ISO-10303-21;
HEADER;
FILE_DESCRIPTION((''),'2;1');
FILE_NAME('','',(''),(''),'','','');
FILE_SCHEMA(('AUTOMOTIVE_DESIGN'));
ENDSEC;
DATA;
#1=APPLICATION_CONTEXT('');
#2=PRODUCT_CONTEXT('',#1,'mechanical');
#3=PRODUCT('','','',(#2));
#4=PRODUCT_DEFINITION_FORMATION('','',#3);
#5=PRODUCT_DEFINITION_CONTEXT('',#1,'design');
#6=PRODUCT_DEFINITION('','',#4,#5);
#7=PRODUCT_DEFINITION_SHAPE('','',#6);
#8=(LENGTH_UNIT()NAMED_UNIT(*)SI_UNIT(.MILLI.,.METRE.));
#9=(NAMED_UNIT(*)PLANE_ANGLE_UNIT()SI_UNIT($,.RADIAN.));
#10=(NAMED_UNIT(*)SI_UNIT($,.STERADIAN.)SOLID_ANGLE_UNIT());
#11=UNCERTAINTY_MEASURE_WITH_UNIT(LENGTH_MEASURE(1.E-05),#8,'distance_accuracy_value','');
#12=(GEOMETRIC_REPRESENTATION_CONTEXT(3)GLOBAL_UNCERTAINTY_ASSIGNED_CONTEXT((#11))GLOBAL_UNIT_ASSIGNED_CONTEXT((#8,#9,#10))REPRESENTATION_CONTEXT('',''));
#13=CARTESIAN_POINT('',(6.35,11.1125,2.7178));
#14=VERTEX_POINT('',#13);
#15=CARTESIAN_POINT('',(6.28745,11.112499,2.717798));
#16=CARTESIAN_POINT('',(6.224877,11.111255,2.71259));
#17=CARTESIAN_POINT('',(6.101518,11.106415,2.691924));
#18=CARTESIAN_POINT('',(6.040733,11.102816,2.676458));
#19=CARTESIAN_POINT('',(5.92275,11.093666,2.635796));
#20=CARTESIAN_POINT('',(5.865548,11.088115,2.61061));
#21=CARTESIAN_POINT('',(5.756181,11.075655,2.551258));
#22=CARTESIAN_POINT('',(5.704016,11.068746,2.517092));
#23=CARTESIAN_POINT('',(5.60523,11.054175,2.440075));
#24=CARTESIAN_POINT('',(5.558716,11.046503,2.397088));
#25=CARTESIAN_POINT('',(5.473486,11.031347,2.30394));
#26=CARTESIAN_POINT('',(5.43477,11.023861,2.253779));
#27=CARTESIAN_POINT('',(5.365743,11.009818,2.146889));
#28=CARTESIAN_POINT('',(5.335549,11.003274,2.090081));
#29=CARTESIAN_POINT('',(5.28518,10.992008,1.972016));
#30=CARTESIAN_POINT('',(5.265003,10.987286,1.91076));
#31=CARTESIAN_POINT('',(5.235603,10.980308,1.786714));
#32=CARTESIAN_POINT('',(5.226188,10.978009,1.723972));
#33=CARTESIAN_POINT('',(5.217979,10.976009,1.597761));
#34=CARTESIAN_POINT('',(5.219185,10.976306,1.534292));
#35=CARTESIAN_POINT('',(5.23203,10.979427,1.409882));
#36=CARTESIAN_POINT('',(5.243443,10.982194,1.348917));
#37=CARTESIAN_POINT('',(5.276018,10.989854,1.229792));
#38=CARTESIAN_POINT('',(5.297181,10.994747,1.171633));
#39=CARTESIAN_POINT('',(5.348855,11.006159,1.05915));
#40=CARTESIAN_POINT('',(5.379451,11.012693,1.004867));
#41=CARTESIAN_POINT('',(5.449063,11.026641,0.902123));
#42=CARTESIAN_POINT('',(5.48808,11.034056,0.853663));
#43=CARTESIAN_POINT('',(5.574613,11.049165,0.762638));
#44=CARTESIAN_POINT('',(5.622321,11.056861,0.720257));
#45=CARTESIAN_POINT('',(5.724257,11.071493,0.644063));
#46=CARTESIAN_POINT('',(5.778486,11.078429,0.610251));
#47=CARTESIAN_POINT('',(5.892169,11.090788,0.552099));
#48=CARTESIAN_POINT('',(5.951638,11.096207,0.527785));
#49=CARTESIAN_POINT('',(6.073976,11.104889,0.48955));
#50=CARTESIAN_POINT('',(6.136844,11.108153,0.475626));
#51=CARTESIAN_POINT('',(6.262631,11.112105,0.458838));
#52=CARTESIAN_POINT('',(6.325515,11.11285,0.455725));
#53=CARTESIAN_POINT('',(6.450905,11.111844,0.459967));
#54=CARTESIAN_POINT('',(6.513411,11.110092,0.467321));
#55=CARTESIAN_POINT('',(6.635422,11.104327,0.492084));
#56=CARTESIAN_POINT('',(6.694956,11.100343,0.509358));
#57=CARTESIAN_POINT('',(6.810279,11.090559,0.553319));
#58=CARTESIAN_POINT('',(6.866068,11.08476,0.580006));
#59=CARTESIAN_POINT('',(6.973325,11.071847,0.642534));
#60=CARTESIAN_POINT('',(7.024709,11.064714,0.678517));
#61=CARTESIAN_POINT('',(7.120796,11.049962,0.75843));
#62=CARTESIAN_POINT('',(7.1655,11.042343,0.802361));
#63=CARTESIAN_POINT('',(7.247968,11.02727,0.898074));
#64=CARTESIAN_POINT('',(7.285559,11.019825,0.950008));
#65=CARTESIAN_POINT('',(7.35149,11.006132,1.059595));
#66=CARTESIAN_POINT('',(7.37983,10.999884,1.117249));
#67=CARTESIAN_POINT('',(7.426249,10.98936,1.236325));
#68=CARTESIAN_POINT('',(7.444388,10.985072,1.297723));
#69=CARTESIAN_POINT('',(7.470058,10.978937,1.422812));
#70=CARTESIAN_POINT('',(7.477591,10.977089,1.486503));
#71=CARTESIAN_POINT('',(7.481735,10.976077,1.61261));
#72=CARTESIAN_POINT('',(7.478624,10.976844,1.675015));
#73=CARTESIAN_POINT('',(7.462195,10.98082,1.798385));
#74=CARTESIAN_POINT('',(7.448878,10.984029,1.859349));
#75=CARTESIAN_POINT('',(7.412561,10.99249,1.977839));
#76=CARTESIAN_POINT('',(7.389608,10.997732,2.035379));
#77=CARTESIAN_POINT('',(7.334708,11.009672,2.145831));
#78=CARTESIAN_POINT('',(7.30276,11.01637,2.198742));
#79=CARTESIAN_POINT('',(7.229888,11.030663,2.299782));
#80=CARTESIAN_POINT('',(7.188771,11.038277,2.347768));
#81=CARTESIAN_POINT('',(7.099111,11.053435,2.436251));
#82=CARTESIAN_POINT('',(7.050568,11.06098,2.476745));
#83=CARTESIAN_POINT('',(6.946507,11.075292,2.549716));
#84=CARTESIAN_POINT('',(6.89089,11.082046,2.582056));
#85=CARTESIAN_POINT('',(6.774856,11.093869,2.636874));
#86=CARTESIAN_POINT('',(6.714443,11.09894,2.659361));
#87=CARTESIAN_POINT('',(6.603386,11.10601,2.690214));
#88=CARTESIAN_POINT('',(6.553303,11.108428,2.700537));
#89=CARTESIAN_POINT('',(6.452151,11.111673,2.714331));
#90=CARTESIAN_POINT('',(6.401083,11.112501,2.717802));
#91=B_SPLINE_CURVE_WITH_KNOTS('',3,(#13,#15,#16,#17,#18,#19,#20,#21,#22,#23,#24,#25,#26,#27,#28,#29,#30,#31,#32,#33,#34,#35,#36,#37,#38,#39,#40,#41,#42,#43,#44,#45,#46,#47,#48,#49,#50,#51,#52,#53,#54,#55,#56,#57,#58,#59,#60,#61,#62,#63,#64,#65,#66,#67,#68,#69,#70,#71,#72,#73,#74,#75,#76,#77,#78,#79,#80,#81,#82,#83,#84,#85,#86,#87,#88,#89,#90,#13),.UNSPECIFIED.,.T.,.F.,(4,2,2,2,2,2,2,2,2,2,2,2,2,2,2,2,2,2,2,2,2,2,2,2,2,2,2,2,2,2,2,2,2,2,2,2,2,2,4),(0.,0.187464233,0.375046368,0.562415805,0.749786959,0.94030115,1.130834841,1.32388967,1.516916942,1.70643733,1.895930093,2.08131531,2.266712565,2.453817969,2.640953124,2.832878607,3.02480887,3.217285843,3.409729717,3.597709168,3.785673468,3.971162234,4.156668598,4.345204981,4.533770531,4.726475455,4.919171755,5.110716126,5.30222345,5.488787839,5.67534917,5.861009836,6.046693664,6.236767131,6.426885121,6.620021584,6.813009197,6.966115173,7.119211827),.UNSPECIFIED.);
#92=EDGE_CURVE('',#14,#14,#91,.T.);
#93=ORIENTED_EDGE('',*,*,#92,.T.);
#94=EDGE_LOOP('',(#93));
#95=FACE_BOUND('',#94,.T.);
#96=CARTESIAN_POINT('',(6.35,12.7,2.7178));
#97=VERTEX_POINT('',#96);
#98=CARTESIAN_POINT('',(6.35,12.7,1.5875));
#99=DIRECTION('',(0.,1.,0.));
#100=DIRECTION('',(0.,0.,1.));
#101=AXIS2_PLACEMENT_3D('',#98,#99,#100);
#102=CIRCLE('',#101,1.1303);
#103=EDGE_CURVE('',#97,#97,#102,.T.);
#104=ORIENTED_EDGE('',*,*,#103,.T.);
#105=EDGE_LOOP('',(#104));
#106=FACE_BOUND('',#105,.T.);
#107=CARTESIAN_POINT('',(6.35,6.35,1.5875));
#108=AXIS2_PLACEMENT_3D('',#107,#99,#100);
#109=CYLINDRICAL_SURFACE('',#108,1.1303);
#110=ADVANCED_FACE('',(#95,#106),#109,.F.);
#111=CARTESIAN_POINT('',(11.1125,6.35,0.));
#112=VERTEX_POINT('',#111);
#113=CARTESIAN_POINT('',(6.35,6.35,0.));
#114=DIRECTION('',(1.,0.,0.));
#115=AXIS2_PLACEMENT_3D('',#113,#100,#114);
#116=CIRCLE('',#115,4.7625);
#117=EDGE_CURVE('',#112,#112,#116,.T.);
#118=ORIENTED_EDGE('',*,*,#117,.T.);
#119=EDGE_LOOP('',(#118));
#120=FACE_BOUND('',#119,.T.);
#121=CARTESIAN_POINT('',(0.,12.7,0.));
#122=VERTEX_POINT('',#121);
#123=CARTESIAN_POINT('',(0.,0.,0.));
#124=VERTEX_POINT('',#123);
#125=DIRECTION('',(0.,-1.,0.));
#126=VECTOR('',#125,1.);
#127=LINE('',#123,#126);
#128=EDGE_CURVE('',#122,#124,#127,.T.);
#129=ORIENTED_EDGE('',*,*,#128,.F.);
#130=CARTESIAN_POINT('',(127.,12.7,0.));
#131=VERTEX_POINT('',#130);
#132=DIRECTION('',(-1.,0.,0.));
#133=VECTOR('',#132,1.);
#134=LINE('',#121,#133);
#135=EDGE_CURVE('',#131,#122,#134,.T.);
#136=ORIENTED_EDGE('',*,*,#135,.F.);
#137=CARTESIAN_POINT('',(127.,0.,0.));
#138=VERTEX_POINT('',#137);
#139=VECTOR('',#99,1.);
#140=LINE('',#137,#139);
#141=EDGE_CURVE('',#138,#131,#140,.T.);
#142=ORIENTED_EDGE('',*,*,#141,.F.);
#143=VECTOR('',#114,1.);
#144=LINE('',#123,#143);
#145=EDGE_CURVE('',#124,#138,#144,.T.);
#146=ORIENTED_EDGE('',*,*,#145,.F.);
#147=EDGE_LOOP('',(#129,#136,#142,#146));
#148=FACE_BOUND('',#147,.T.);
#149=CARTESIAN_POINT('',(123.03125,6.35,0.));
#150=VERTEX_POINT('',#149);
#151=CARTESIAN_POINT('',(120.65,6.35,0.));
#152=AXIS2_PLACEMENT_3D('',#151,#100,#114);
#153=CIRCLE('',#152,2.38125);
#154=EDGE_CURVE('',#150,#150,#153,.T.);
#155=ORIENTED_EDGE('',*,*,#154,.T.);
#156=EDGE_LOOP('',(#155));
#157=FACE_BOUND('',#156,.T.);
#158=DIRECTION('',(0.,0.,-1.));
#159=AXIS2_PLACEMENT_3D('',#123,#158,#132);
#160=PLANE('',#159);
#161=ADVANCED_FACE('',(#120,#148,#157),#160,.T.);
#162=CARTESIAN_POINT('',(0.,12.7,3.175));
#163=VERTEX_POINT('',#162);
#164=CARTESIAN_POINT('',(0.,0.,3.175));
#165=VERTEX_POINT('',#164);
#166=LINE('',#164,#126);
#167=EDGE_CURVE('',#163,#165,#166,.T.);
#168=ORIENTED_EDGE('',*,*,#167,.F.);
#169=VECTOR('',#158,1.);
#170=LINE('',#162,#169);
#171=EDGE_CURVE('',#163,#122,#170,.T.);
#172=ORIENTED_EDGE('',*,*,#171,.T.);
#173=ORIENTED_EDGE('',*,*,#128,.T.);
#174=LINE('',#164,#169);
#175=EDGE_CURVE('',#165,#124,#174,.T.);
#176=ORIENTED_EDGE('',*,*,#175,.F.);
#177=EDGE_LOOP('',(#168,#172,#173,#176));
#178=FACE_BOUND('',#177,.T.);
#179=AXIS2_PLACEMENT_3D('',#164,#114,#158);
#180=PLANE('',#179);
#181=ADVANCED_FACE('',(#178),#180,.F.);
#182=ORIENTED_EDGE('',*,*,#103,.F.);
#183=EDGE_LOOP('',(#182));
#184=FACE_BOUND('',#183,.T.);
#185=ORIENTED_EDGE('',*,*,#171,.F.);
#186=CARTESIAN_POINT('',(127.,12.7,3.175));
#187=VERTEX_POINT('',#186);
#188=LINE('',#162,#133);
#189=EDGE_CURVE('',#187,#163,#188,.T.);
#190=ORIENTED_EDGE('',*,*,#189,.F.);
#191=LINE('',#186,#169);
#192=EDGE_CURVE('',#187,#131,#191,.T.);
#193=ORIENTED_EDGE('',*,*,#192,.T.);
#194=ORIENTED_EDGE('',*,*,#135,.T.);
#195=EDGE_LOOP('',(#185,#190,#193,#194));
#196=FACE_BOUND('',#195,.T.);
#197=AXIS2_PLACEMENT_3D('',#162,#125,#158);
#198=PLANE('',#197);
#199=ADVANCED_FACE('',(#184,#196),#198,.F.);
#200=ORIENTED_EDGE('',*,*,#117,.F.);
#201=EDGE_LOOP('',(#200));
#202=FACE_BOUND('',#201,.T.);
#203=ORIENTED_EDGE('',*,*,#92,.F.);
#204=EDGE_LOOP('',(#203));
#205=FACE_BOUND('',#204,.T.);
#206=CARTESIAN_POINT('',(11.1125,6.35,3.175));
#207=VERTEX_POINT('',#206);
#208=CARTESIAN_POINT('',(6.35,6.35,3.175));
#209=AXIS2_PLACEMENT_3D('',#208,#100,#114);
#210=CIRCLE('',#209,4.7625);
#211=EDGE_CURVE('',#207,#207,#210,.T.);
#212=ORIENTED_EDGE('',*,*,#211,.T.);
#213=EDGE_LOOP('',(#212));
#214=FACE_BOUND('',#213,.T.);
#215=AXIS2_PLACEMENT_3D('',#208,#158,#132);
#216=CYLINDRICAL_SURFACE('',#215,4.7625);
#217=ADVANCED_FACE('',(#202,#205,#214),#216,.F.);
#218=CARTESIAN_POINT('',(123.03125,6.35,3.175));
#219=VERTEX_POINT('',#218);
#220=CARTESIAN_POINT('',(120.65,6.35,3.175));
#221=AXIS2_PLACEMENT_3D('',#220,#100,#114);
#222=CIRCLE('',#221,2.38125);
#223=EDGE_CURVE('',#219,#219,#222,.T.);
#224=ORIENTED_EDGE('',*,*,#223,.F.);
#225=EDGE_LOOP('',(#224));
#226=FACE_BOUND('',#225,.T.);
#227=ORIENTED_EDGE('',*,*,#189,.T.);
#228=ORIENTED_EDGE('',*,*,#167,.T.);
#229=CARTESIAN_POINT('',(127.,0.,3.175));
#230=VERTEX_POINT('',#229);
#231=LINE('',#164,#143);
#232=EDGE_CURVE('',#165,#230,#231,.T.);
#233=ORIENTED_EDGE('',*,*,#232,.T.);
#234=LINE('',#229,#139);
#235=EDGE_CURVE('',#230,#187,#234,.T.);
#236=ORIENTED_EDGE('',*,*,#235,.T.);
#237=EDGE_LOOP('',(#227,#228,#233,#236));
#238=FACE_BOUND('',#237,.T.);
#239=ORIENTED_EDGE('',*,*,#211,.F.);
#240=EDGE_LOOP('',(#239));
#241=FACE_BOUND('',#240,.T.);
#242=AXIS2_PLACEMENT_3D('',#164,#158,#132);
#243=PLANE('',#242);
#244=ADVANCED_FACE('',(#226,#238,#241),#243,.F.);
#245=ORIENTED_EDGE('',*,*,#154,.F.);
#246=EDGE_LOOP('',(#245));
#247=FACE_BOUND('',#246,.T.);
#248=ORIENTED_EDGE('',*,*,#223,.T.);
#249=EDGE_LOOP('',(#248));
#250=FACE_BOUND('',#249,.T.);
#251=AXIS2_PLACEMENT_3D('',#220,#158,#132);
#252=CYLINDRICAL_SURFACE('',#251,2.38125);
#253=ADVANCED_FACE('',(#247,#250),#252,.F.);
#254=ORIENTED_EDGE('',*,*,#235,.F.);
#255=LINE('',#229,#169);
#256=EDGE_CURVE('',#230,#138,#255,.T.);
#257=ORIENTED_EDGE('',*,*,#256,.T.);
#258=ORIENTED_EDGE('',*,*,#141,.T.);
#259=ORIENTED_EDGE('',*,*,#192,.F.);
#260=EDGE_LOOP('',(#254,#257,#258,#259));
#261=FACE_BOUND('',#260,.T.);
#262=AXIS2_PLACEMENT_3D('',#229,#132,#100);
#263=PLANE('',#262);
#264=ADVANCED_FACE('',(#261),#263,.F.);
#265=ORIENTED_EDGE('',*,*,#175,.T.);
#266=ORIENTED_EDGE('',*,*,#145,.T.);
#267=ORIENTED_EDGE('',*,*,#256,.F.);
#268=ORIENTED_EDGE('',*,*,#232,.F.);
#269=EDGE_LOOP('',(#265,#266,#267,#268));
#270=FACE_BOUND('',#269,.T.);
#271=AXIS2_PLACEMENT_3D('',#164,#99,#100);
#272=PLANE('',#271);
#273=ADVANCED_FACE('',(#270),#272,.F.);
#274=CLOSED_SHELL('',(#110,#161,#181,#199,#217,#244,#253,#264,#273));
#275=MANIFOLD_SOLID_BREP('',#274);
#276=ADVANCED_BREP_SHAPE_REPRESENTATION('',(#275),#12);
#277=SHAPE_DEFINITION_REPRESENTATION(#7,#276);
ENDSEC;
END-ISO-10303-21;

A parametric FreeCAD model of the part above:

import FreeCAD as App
import Part
import Sketcher

V = App.Vector
Q = App.Units.Quantity

doc = App.newDocument("Part")
body = doc.addObject("PartDesign::Body", "Body")

# Sketch on XY plane
sketch1 = body.newObject("Sketcher::SketchObject", "Sketch")
sketch1.AttachmentSupport = (doc.getObject("XY_Plane"), [""])
sketch1.MapMode = "FlatFace"
sketch1.addGeometry(Part.LineSegment(V(0, 12.7, 0), V(0, 0, 0)), False)
sketch1.addGeometry(Part.LineSegment(V(0, 0, 0), V(127, 0, 0)), False)
sketch1.addGeometry(Part.LineSegment(V(127, 0, 0), V(127, 12.7, 0)), False)
sketch1.addGeometry(Part.LineSegment(V(127, 12.7, 0), V(0, 12.7, 0)), False)
sketch1.addGeometry(Part.Circle(V(6.3, 6.3, 0), V(0, 0, 1), 4.8), False)
sketch1.addGeometry(Part.Circle(V(120.7, 6.3, 0), V(0, 0, 1), 2.4), False)
sketch1.addConstraint(Sketcher.Constraint("Coincident", 0, 2, 1, 1))
sketch1.addConstraint(Sketcher.Constraint("Coincident", 1, 2, 2, 1))
sketch1.addConstraint(Sketcher.Constraint("Coincident", 2, 2, 3, 1))
sketch1.addConstraint(Sketcher.Constraint("Coincident", 3, 2, 0, 1))
sketch1.addConstraint(Sketcher.Constraint("Vertical", 0))
sketch1.addConstraint(Sketcher.Constraint("Horizontal", 1))
sketch1.addConstraint(Sketcher.Constraint("Vertical", 2))
sketch1.addConstraint(Sketcher.Constraint("Horizontal", 3))
sketch1.addConstraint(Sketcher.Constraint("Coincident", 0, 2, -1, 1))
sketch1.addConstraint(Sketcher.Constraint("Horizontal", 4, 3, 5, 3))
sketch1.addConstraint(Sketcher.Constraint("DistanceX", 1, 1, 1, 2, Q("5 in")))
sketch1.addConstraint(Sketcher.Constraint("Diameter", 4, Q("0.375 in")))
sketch1.addConstraint(Sketcher.Constraint("Diameter", 5, Q("0.1875 in")))
sketch1.addConstraint(Sketcher.Constraint("DistanceY", 0, 2, 0, 1, Q("0.5 in")))
sketch1.addConstraint(Sketcher.Constraint("DistanceX", 4, 3, 5, 3, Q("4.5 in")))
sketch1.addConstraint(Sketcher.Constraint("DistanceX", -1, 1, 4, 3, Q("0.25 in")))
sketch1.addConstraint(Sketcher.Constraint("DistanceY", -1, 1, 4, 3, Q("0.25 in")))
pad1 = body.newObject("PartDesign::Pad", "Pad")
pad1.Profile = sketch1
pad1.Length = Q("0.125 in")

# Sketch on XZ plane
sketch2 = body.newObject("Sketcher::SketchObject", "Sketch001")
sketch2.AttachmentSupport = (doc.getObject("XZ_Plane"), [""])
sketch2.MapMode = "FlatFace"
sketch2.AttachmentOffset = App.Placement(V(0, 0, -0.5 * 25.4), App.Rotation())
sketch2.addGeometry(Part.Circle(V(6.3, 1.6, 0), V(0, 0, 1), 1.1), False)
sketch2.addConstraint(Sketcher.Constraint("Diameter", 0, Q("0.089 in")))
sketch2.addConstraint(Sketcher.Constraint("DistanceX", -1, 1, 0, 3, Q("0.25 in")))
sketch2.addConstraint(Sketcher.Constraint("DistanceY", -1, 1, 0, 3, Q("0.0625 in")))
pocket1 = body.newObject("PartDesign::Pocket", "Pocket")
pocket1.Profile = sketch2
pocket1.Length = Q("0.25 in")
pocket1.Reversed = True

doc.recompute()
